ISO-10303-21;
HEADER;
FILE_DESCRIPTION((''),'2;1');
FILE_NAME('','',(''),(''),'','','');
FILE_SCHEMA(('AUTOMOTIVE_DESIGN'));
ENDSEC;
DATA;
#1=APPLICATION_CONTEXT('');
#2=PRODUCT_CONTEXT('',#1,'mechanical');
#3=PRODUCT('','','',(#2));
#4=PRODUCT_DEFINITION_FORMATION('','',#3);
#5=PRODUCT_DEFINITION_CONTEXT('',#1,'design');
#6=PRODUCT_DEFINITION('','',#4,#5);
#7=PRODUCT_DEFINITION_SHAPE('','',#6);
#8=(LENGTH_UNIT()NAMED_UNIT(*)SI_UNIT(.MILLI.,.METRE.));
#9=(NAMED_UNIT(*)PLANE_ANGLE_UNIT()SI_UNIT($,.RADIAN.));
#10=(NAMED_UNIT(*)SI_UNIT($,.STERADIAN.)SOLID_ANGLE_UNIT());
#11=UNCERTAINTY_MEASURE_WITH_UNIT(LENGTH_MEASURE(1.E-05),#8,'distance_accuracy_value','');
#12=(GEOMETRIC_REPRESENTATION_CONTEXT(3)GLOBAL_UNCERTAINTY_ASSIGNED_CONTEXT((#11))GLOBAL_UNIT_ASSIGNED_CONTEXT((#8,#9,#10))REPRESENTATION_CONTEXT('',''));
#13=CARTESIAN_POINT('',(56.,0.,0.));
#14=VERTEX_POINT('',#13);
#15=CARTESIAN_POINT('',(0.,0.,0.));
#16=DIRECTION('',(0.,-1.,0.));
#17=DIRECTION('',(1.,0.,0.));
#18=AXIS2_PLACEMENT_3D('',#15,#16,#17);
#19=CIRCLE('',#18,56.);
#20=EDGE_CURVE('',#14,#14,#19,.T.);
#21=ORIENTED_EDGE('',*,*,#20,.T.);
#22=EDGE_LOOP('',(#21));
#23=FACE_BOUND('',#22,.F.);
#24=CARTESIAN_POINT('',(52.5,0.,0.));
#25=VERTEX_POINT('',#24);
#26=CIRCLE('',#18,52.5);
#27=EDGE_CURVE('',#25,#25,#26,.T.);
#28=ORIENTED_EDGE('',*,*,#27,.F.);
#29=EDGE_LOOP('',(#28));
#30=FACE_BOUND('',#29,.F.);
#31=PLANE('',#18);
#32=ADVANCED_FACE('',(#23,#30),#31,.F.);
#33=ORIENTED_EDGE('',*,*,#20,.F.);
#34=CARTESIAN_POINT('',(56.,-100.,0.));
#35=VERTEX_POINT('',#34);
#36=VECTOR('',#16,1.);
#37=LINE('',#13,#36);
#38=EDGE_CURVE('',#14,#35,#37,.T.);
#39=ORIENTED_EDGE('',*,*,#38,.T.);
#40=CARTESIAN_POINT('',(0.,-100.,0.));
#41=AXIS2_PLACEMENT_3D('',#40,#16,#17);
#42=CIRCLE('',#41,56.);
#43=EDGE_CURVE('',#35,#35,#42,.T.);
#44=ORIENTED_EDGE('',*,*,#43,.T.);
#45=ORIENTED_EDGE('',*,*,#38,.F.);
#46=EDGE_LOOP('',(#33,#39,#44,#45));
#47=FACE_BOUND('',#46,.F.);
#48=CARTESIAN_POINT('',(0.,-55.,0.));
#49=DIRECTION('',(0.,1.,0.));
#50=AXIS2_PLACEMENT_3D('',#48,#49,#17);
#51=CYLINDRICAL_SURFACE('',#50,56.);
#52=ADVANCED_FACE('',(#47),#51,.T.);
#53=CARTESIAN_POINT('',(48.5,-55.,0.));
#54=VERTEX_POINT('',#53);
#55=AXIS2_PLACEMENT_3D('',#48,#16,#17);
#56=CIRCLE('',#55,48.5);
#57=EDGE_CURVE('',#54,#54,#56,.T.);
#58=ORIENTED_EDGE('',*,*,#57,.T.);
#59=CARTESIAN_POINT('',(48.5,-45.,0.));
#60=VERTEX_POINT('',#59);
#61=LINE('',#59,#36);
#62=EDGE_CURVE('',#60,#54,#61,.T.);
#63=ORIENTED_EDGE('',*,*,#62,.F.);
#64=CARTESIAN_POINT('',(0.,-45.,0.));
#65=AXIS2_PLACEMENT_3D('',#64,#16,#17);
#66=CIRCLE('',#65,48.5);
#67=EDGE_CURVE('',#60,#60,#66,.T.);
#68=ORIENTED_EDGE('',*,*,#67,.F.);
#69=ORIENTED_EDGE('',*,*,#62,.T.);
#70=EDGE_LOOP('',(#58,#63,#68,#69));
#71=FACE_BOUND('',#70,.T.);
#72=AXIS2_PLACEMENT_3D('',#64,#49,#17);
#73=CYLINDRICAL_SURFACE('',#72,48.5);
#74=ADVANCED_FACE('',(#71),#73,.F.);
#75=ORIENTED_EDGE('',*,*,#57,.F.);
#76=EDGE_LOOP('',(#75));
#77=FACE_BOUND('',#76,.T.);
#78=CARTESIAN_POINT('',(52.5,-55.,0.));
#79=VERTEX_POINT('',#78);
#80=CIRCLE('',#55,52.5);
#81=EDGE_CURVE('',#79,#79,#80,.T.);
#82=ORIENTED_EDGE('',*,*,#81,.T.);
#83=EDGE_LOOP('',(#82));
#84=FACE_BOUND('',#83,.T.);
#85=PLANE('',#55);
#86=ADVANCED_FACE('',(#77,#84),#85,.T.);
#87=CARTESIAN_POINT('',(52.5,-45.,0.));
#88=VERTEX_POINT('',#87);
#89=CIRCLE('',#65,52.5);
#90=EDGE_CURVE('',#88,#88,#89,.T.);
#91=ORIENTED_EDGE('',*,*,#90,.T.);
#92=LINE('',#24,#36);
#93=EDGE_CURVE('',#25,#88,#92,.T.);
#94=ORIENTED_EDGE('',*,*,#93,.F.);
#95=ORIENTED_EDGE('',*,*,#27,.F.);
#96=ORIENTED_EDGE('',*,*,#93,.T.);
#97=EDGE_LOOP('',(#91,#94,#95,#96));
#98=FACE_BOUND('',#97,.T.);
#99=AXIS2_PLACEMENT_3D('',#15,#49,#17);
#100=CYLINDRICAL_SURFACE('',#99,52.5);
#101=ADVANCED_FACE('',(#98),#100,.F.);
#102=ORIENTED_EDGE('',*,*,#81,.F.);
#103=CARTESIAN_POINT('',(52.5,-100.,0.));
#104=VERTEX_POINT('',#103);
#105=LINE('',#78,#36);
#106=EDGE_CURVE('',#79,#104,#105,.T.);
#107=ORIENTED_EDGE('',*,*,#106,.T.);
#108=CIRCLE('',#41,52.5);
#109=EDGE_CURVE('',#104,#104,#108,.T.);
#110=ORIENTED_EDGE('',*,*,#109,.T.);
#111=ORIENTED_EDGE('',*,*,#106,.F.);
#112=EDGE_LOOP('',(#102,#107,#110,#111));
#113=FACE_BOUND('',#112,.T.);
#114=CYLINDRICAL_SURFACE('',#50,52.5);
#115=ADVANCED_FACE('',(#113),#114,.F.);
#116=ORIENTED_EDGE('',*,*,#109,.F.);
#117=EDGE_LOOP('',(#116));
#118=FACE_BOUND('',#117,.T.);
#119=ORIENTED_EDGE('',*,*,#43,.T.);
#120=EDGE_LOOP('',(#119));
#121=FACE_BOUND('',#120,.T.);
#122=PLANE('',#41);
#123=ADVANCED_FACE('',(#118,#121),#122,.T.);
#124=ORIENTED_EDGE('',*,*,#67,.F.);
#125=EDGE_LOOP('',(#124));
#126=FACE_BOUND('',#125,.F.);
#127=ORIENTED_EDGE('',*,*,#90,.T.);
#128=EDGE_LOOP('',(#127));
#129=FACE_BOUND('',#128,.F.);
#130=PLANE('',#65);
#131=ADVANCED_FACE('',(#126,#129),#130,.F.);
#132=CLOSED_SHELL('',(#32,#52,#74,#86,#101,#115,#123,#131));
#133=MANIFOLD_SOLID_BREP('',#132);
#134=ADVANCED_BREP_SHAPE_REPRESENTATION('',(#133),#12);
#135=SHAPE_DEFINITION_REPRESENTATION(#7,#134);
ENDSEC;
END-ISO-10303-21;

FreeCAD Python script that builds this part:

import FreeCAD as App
import Part
import Sketcher
Q = App.Units.Quantity

doc = App.newDocument("Part")
body = doc.addObject("PartDesign::Body", "Body")

# Sketch on XZ plane
sketch1 = body.newObject("Sketcher::SketchObject", "Sketch")
sketch1.AttachmentSupport = (doc.getObject("XZ_Plane"), [""])
sketch1.MapMode = "FlatFace"
sketch1.addGeometry(Part.Circle(App.Vector(0, 0, 0), App.Vector(0, 0, 1), 56), False)
sketch1.addGeometry(Part.Circle(App.Vector(0, 0, 0), App.Vector(0, 0, 1), 52), False)
sketch1.addConstraint(Sketcher.Constraint("Coincident", 0, 3, -1, 1))
sketch1.addConstraint(Sketcher.Constraint("Coincident", 1, 3, -1, 1))
sketch1.addConstraint(Sketcher.Constraint("Diameter", 0, Q("112 mm")))
sketch1.addConstraint(Sketcher.Constraint("Diameter", 1, Q("105 mm")))
pad1 = body.newObject("PartDesign::Pad", "Pad")
pad1.Profile = sketch1
pad1.Length = 45

# Sketch on XZ plane
sketch2 = body.newObject("Sketcher::SketchObject", "Sketch001")
sketch2.AttachmentSupport = (doc.getObject("XZ_Plane"), [""])
sketch2.MapMode = "FlatFace"
sketch2.AttachmentOffset = App.Placement(App.Vector(0, 0, 45), App.Rotation())
sketch2.addGeometry(Part.Circle(App.Vector(0, 0, 0), App.Vector(0, 0, 1), 56), False)
sketch2.addGeometry(Part.Circle(App.Vector(0, 0, 0), App.Vector(0, 0, 1), 48), False)
sketch2.addConstraint(Sketcher.Constraint("Coincident", 0, 3, -1, 1))
sketch2.addConstraint(Sketcher.Constraint("Coincident", 1, 3, -1, 1))
sketch2.addConstraint(Sketcher.Constraint("Diameter", 0, Q("112 mm")))
sketch2.addConstraint(Sketcher.Constraint("Diameter", 1, Q("97 mm")))
pad2 = body.newObject("PartDesign::Pad", "Pad001")
pad2.Profile = sketch2
pad2.Length = 10

# Sketch on XZ plane
sketch3 = body.newObject("Sketcher::SketchObject", "Sketch002")
sketch3.AttachmentSupport = (doc.getObject("XZ_Plane"), [""])
sketch3.MapMode = "FlatFace"
sketch3.AttachmentOffset = App.Placement(App.Vector(0, 0, 55), App.Rotation())
sketch3.addGeometry(Part.Circle(App.Vector(0, 0, 0), App.Vector(0, 0, 1), 56), False)
sketch3.addGeometry(Part.Circle(App.Vector(0, 0, 0), App.Vector(0, 0, 1), 52), False)
sketch3.addConstraint(Sketcher.Constraint("Coincident", 0, 3, -1, 1))
sketch3.addConstraint(Sketcher.Constraint("Coincident", 1, 3, -1, 1))
sketch3.addConstraint(Sketcher.Constraint("Diameter", 0, Q("112 mm")))
sketch3.addConstraint(Sketcher.Constraint("Diameter", 1, Q("105 mm")))
pad3 = body.newObject("PartDesign::Pad", "Pad002")
pad3.Profile = sketch3
pad3.Length = 45

doc.recompute()
